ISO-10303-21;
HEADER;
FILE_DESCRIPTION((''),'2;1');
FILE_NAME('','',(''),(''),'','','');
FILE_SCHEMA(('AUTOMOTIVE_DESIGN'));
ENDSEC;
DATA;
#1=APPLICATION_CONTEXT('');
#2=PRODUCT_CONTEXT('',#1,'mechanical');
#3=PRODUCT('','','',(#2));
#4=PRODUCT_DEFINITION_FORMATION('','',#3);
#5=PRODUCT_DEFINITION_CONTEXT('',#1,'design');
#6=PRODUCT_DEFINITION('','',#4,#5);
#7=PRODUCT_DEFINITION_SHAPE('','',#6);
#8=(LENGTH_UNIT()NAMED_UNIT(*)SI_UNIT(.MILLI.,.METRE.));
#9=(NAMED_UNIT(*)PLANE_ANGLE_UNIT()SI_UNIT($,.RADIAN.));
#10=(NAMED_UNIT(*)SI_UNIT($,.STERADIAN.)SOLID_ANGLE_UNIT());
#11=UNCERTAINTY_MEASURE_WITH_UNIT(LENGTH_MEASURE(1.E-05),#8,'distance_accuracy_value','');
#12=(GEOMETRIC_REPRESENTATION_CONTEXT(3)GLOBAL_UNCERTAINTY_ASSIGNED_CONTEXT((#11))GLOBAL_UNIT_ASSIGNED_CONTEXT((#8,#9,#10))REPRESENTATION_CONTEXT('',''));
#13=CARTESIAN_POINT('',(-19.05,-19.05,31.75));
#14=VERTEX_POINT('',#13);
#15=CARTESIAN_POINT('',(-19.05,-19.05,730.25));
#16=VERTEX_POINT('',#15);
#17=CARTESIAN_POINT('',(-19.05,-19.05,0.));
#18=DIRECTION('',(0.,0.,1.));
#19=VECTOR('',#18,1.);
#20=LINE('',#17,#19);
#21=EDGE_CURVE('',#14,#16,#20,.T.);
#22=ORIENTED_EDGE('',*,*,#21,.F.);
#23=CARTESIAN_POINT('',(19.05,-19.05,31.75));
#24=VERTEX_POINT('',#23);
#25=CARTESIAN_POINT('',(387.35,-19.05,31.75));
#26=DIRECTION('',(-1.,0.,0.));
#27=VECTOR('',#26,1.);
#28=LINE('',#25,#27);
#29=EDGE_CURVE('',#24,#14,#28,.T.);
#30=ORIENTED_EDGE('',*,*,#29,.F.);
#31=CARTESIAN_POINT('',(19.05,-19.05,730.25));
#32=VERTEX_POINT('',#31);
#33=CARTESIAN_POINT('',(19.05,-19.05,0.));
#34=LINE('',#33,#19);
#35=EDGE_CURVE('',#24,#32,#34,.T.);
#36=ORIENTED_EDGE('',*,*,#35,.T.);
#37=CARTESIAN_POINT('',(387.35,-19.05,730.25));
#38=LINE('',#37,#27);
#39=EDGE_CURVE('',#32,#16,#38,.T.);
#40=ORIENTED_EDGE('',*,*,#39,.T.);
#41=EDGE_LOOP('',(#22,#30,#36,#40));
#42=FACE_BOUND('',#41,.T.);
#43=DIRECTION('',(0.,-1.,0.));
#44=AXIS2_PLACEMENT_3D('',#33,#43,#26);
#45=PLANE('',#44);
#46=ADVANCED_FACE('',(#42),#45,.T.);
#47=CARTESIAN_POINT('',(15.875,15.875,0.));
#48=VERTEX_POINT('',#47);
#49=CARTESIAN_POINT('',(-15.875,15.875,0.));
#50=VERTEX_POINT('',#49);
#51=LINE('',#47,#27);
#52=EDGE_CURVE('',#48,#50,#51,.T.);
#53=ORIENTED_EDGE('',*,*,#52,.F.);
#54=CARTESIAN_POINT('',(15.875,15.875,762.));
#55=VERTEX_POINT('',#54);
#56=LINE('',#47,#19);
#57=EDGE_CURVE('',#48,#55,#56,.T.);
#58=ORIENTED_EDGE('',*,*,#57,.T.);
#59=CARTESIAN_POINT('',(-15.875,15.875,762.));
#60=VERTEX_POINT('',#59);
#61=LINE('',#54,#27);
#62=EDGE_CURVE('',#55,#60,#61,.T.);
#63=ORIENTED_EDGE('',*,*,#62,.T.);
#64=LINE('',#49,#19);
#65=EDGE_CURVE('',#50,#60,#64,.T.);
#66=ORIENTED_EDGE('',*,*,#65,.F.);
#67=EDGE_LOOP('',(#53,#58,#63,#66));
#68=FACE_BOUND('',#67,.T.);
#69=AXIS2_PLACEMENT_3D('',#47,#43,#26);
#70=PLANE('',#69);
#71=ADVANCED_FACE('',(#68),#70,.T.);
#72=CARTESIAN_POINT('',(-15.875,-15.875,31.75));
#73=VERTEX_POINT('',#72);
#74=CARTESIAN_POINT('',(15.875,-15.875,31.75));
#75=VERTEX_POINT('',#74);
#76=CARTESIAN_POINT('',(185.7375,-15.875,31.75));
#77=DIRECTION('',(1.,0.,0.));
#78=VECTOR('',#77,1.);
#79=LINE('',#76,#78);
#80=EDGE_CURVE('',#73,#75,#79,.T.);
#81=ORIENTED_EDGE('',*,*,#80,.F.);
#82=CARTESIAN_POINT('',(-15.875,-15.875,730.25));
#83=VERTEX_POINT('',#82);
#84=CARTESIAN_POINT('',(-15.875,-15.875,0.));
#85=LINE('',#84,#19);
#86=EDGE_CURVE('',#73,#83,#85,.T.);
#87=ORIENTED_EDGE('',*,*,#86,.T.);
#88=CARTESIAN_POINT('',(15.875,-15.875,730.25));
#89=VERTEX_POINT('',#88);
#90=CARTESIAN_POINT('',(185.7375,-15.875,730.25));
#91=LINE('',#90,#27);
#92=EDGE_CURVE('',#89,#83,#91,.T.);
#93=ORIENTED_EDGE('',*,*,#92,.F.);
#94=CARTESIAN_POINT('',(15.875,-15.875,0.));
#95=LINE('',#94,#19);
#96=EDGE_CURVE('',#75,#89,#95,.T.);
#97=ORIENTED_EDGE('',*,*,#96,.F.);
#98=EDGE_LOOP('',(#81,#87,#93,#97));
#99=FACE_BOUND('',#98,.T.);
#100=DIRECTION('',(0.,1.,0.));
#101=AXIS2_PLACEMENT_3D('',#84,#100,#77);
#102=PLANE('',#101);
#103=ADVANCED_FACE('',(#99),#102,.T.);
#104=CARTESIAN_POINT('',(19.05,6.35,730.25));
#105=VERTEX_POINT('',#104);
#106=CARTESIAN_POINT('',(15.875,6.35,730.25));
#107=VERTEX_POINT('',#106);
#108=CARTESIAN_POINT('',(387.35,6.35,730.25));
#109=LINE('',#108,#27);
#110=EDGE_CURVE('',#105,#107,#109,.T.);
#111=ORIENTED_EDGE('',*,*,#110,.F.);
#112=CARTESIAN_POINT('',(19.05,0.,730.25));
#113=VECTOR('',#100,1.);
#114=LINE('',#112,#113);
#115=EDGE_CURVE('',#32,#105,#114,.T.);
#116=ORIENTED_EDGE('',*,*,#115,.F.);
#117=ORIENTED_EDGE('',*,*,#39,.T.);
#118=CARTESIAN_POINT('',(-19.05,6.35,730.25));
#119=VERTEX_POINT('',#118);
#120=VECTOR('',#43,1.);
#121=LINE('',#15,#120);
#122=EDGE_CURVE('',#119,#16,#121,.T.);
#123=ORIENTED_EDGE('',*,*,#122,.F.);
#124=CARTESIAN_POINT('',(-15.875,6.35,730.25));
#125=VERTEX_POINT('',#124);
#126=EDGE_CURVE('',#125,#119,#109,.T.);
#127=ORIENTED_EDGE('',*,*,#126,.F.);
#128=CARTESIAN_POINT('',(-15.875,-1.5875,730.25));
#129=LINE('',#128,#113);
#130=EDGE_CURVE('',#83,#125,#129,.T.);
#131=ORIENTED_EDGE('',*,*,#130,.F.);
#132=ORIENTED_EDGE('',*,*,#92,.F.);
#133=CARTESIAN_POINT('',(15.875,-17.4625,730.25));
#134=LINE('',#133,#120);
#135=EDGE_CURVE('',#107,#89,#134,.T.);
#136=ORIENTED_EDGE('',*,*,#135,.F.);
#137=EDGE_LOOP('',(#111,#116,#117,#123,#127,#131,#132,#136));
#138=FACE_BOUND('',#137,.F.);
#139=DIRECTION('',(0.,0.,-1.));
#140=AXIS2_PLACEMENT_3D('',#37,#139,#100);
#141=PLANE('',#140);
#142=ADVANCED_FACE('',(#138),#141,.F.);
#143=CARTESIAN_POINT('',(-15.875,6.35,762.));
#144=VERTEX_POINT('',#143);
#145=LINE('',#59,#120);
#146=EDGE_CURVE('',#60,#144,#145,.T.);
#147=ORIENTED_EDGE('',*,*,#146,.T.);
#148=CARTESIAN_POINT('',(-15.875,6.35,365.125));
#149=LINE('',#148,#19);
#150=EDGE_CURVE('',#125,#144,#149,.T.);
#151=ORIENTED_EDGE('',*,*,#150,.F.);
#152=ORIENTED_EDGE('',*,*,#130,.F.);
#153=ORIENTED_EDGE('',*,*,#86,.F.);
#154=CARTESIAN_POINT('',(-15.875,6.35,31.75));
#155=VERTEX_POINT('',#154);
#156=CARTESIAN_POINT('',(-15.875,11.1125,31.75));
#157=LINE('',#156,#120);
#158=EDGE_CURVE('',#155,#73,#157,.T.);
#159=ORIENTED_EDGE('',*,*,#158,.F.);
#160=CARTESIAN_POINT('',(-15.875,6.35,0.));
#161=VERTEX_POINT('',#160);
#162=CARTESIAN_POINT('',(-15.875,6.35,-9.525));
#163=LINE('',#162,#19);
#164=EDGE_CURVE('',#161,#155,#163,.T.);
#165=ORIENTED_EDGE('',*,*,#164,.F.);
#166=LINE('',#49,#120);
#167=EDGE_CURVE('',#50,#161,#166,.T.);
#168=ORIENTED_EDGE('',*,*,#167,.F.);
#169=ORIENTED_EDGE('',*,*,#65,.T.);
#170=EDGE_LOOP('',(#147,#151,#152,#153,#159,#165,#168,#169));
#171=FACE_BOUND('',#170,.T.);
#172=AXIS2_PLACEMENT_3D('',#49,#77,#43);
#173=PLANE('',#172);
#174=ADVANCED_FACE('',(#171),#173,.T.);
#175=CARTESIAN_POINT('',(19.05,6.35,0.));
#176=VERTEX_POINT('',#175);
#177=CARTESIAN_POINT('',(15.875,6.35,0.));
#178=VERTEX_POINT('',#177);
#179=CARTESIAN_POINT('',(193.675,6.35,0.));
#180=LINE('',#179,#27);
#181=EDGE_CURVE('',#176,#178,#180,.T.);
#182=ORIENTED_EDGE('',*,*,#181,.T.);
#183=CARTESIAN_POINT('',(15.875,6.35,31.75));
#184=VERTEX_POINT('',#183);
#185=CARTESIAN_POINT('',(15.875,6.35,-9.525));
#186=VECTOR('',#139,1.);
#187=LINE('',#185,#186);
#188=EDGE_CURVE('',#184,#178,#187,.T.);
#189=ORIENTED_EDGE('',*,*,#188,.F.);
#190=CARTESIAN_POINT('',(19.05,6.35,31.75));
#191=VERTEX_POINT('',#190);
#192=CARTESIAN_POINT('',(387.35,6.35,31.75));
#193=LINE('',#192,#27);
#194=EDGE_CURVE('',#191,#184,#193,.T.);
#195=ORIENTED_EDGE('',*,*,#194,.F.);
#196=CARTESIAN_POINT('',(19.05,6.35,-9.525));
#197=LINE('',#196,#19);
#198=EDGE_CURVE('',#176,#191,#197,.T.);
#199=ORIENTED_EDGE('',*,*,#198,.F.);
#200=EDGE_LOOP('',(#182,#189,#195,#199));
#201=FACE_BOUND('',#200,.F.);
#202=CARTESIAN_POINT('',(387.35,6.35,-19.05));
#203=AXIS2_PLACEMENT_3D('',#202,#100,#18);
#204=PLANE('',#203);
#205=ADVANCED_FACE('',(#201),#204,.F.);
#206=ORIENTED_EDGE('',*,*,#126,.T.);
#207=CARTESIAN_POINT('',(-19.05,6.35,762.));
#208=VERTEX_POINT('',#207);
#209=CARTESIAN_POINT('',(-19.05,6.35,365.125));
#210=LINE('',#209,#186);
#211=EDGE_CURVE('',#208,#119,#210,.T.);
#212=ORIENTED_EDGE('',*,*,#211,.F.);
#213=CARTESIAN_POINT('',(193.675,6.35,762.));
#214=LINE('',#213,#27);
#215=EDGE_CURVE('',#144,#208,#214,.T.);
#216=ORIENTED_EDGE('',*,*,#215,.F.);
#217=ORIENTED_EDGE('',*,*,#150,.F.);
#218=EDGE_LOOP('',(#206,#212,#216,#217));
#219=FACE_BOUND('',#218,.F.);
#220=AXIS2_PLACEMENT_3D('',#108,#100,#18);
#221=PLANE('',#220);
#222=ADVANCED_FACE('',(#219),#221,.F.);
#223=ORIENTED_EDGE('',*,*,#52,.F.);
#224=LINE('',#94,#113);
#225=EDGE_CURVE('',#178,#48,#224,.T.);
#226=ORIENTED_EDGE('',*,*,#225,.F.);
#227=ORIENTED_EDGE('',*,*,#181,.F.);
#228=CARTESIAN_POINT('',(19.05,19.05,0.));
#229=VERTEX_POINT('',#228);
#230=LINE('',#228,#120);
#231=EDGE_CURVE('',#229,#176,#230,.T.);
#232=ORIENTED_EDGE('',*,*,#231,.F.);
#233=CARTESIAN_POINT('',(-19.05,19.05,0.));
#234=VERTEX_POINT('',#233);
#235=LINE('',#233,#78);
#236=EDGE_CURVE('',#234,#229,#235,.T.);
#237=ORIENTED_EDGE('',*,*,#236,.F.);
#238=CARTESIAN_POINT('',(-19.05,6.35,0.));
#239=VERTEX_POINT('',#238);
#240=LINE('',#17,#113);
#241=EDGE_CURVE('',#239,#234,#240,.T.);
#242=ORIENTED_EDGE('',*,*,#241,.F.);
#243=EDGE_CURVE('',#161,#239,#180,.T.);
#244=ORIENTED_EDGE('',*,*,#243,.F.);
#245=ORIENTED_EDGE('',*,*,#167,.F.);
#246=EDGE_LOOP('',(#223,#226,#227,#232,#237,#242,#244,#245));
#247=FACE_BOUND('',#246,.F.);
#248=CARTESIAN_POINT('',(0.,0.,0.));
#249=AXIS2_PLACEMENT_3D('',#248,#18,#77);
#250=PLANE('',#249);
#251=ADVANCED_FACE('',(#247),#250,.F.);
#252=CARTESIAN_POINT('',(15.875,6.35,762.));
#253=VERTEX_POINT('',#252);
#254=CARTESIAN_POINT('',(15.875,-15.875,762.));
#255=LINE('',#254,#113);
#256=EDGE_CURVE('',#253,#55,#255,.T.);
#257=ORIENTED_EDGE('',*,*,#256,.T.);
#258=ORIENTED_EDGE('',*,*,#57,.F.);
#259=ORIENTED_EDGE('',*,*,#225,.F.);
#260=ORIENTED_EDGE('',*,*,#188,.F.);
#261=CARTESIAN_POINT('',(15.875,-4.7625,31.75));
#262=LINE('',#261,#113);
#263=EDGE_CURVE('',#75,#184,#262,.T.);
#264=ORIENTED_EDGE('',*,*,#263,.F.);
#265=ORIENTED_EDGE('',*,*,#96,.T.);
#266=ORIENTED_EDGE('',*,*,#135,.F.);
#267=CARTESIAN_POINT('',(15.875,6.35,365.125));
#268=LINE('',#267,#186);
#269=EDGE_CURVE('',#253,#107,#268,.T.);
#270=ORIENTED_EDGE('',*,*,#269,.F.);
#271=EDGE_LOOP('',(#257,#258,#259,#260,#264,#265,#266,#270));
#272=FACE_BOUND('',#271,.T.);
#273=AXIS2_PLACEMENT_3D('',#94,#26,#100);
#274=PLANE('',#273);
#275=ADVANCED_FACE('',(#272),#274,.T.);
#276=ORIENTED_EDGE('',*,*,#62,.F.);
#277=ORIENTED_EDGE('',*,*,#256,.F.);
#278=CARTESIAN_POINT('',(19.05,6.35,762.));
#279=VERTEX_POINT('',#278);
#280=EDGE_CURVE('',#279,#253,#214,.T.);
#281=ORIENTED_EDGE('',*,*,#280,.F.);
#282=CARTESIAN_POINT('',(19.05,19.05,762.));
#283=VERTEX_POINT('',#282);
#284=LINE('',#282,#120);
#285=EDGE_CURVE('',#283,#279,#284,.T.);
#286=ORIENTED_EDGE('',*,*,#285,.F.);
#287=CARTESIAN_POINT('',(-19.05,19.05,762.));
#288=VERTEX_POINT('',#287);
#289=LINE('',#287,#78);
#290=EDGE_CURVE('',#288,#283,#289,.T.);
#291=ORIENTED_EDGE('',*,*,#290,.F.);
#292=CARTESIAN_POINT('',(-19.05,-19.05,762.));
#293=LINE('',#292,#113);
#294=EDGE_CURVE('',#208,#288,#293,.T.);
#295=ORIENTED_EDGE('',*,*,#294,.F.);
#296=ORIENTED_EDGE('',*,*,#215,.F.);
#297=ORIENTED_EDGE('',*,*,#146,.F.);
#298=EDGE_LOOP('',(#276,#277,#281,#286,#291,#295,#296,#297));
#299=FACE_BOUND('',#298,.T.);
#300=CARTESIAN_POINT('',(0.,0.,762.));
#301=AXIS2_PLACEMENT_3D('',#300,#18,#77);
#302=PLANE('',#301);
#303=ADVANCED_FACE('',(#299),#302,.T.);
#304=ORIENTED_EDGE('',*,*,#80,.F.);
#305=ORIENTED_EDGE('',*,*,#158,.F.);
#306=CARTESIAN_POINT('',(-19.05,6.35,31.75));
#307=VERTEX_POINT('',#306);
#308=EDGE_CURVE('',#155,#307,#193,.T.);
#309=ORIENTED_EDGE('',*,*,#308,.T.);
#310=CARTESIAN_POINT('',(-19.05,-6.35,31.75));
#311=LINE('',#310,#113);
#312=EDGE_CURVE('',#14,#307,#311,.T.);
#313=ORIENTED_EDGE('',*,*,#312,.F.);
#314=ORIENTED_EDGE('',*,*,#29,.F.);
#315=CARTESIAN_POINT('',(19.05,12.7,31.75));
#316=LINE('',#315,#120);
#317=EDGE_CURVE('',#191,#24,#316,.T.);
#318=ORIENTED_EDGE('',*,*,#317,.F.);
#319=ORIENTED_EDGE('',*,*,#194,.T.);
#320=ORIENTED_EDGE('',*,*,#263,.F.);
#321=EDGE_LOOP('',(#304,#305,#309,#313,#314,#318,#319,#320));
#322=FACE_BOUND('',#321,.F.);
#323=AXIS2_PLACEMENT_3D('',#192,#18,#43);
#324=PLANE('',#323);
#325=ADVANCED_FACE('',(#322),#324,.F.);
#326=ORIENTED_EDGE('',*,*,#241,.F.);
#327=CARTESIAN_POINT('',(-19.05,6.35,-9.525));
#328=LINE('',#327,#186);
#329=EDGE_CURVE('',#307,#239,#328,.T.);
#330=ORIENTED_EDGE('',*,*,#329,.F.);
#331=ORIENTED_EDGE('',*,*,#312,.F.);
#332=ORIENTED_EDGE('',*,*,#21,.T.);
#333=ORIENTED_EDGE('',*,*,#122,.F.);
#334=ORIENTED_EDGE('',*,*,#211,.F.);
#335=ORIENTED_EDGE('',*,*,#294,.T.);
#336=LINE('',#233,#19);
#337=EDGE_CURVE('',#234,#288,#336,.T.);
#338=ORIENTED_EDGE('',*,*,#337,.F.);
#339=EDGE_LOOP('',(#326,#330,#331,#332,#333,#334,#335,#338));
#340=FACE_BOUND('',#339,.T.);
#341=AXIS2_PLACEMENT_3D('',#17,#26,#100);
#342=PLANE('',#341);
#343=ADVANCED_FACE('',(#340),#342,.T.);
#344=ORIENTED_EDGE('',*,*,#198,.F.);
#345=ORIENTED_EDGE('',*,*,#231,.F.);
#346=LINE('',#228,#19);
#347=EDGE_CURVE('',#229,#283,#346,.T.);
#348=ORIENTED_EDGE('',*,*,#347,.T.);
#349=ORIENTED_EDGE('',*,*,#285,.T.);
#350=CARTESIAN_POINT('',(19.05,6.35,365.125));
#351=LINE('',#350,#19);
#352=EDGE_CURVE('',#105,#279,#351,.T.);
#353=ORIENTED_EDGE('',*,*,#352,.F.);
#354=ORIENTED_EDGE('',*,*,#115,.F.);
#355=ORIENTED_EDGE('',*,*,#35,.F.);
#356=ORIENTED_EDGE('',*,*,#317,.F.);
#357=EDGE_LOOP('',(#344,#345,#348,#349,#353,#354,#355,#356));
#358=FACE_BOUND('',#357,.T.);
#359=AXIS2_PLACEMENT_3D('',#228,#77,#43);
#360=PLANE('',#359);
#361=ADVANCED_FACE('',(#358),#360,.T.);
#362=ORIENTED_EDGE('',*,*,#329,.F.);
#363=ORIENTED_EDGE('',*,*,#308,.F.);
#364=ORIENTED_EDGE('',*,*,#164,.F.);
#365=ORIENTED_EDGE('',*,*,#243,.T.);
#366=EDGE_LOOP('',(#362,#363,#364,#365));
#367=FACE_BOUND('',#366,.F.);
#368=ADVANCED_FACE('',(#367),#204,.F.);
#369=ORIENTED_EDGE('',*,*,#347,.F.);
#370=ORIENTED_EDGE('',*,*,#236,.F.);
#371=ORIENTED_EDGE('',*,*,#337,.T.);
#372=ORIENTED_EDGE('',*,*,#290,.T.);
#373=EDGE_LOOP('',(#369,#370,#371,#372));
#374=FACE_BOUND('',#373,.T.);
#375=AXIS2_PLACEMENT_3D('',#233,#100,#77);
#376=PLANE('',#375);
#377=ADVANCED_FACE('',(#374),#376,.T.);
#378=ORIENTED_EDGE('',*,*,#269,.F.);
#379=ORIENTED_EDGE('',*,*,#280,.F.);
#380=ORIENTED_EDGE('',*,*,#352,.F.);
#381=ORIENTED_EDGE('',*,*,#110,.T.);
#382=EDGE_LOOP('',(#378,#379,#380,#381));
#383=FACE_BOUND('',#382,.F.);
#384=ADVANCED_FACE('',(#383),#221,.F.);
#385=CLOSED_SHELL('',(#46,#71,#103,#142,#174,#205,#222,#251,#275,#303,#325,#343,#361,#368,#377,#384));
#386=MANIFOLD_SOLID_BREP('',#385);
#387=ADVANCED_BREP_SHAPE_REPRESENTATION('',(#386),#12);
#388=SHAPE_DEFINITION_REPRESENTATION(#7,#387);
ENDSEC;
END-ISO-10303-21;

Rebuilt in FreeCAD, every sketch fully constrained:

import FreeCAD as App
import Part
import Sketcher
Q = App.Units.Quantity

doc = App.newDocument("Part")
body = doc.addObject("PartDesign::Body", "Body")

# Sketch on XY plane
sketch1 = body.newObject("Sketcher::SketchObject", "Sketch")
sketch1.AttachmentSupport = (doc.getObject("XY_Plane"), [""])
sketch1.MapMode = "FlatFace"
sketch1.addGeometry([
    Part.LineSegment(App.Vector(19.05, 19.05, 0), App.Vector(-19.05, 19.05, 0)),  # 0
    Part.LineSegment(App.Vector(-19.05, 19.05, 0), App.Vector(-19.05, -19.05, 0)),  # 1
    Part.LineSegment(App.Vector(-19.05, -19.05, 0), App.Vector(19.05, -19.05, 0)),  # 2
    Part.LineSegment(App.Vector(19.05, -19.05, 0), App.Vector(19.05, 19.05, 0)),  # 3
    Part.LineSegment(App.Vector(-15.875, 15.875, 0), App.Vector(15.875, 15.875, 0)),  # 4
    Part.LineSegment(App.Vector(15.875, 15.875, 0), App.Vector(15.875, -15.875, 0)),  # 5
    Part.LineSegment(App.Vector(15.875, -15.875, 0), App.Vector(-15.875, -15.875, 0)),  # 6
    Part.LineSegment(App.Vector(-15.875, -15.875, 0), App.Vector(-15.875, 15.875, 0)),  # 7
], False)
sketch1.addConstraint([
    Sketcher.Constraint("Coincident", 0, 2, 1, 1),
    Sketcher.Constraint("Coincident", 1, 2, 2, 1),
    Sketcher.Constraint("Coincident", 2, 2, 3, 1),
    Sketcher.Constraint("Coincident", 3, 2, 0, 1),
    Sketcher.Constraint("Coincident", 4, 2, 5, 1),
    Sketcher.Constraint("Coincident", 5, 2, 6, 1),
    Sketcher.Constraint("Coincident", 6, 2, 7, 1),
    Sketcher.Constraint("Coincident", 7, 2, 4, 1),
    Sketcher.Constraint("Horizontal", 0),
    Sketcher.Constraint("Vertical", 1),
    Sketcher.Constraint("Horizontal", 2),
    Sketcher.Constraint("Vertical", 3),
    Sketcher.Constraint("Horizontal", 4),
    Sketcher.Constraint("Vertical", 5),
    Sketcher.Constraint("Horizontal", 6),
    Sketcher.Constraint("Vertical", 7),
    Sketcher.Constraint("Symmetric", 0, 2, 2, 2, -1, 1),
    Sketcher.Constraint("Symmetric", 4, 2, 6, 2, -1, 1),
    Sketcher.Constraint("Equal", 2, 1),
    Sketcher.Constraint("Equal", 6, 5),
    Sketcher.Constraint("DistanceX", 0, 2, 0, 1, Q("1.5 in")),
    Sketcher.Constraint("DistanceX", 4, 2, 3, 2, Q("0.125 in")),
])
pad1 = body.newObject("PartDesign::Pad", "Pad")
pad1.Profile = sketch1
pad1.Length = Q("30 in")

# Sketch on YZ plane
sketch2 = body.newObject("Sketcher::SketchObject", "Sketch001")
sketch2.AttachmentSupport = (doc.getObject("YZ_Plane"), [""])
sketch2.MapMode = "FlatFace"
sketch2.AttachmentOffset = App.Placement(App.Vector(0, 0, 15.25 * 25.4), App.Rotation())
sketch2.addGeometry([
    Part.LineSegment(App.Vector(6.35, 781.05, 0), App.Vector(6.35, 730.25, 0)),
    Part.LineSegment(App.Vector(6.35, 730.25, 0), App.Vector(-19.05, 730.25, 0)),
    Part.LineSegment(App.Vector(-19.05, 730.25, 0), App.Vector(-19.05, 781.05, 0)),
    Part.LineSegment(App.Vector(-19.05, 781.05, 0), App.Vector(6.35, 781.05, 0)),
], False)
sketch2.addConstraint([
    Sketcher.Constraint("Coincident", 0, 2, 1, 1),
    Sketcher.Constraint("Coincident", 1, 2, 2, 1),
    Sketcher.Constraint("Coincident", 2, 2, 3, 1),
    Sketcher.Constraint("Coincident", 3, 2, 0, 1),
    Sketcher.Constraint("Vertical", 0),
    Sketcher.Constraint("Horizontal", 1),
    Sketcher.Constraint("Vertical", 2),
    Sketcher.Constraint("Horizontal", 3),
    Sketcher.Constraint("DistanceX", 1, 2, 1, 1, Q("1 in")),
    Sketcher.Constraint("DistanceY", 0, 2, 0, 1, Q("2 in")),
    Sketcher.Constraint("DistanceX", -1, 1, 0, 2, Q("0.25 in")),
    Sketcher.Constraint("DistanceY", -1, 1, 0, 2, Q("28.75 in")),
])
pocket1 = body.newObject("PartDesign::Pocket", "Pocket")
pocket1.Profile = sketch2
pocket1.Length = Q("44.5 in")

# Sketch on YZ plane
sketch3 = body.newObject("Sketcher::SketchObject", "Sketch002")
sketch3.AttachmentSupport = (doc.getObject("YZ_Plane"), [""])
sketch3.MapMode = "FlatFace"
sketch3.AttachmentOffset = App.Placement(App.Vector(0, 0, 15.25 * 25.4), App.Rotation())
sketch3.addGeometry([
    Part.LineSegment(App.Vector(6.35, 31.75, 0), App.Vector(6.35, -19.05, 0)),
    Part.LineSegment(App.Vector(6.35, -19.05, 0), App.Vector(-19.05, -19.05, 0)),
    Part.LineSegment(App.Vector(-19.05, -19.05, 0), App.Vector(-19.05, 31.75, 0)),
    Part.LineSegment(App.Vector(-19.05, 31.75, 0), App.Vector(6.35, 31.75, 0)),
], False)
sketch3.addConstraint([
    Sketcher.Constraint("Coincident", 0, 2, 1, 1),
    Sketcher.Constraint("Coincident", 1, 2, 2, 1),
    Sketcher.Constraint("Coincident", 2, 2, 3, 1),
    Sketcher.Constraint("Coincident", 3, 2, 0, 1),
    Sketcher.Constraint("Vertical", 0),
    Sketcher.Constraint("Horizontal", 1),
    Sketcher.Constraint("Vertical", 2),
    Sketcher.Constraint("Horizontal", 3),
    Sketcher.Constraint("DistanceX", 1, 2, 1, 1, Q("1 in")),
    Sketcher.Constraint("DistanceY", 0, 2, 0, 1, Q("2 in")),
    Sketcher.Constraint("DistanceX", -1, 1, 0, 2, Q("0.25 in")),
    Sketcher.Constraint("DistanceY", 0, 2, -1, 1, Q("0.75 in")),
])
pocket2 = body.newObject("PartDesign::Pocket", "Pocket001")
pocket2.Profile = sketch3
pocket2.Length = Q("44.5 in")

doc.recompute()
